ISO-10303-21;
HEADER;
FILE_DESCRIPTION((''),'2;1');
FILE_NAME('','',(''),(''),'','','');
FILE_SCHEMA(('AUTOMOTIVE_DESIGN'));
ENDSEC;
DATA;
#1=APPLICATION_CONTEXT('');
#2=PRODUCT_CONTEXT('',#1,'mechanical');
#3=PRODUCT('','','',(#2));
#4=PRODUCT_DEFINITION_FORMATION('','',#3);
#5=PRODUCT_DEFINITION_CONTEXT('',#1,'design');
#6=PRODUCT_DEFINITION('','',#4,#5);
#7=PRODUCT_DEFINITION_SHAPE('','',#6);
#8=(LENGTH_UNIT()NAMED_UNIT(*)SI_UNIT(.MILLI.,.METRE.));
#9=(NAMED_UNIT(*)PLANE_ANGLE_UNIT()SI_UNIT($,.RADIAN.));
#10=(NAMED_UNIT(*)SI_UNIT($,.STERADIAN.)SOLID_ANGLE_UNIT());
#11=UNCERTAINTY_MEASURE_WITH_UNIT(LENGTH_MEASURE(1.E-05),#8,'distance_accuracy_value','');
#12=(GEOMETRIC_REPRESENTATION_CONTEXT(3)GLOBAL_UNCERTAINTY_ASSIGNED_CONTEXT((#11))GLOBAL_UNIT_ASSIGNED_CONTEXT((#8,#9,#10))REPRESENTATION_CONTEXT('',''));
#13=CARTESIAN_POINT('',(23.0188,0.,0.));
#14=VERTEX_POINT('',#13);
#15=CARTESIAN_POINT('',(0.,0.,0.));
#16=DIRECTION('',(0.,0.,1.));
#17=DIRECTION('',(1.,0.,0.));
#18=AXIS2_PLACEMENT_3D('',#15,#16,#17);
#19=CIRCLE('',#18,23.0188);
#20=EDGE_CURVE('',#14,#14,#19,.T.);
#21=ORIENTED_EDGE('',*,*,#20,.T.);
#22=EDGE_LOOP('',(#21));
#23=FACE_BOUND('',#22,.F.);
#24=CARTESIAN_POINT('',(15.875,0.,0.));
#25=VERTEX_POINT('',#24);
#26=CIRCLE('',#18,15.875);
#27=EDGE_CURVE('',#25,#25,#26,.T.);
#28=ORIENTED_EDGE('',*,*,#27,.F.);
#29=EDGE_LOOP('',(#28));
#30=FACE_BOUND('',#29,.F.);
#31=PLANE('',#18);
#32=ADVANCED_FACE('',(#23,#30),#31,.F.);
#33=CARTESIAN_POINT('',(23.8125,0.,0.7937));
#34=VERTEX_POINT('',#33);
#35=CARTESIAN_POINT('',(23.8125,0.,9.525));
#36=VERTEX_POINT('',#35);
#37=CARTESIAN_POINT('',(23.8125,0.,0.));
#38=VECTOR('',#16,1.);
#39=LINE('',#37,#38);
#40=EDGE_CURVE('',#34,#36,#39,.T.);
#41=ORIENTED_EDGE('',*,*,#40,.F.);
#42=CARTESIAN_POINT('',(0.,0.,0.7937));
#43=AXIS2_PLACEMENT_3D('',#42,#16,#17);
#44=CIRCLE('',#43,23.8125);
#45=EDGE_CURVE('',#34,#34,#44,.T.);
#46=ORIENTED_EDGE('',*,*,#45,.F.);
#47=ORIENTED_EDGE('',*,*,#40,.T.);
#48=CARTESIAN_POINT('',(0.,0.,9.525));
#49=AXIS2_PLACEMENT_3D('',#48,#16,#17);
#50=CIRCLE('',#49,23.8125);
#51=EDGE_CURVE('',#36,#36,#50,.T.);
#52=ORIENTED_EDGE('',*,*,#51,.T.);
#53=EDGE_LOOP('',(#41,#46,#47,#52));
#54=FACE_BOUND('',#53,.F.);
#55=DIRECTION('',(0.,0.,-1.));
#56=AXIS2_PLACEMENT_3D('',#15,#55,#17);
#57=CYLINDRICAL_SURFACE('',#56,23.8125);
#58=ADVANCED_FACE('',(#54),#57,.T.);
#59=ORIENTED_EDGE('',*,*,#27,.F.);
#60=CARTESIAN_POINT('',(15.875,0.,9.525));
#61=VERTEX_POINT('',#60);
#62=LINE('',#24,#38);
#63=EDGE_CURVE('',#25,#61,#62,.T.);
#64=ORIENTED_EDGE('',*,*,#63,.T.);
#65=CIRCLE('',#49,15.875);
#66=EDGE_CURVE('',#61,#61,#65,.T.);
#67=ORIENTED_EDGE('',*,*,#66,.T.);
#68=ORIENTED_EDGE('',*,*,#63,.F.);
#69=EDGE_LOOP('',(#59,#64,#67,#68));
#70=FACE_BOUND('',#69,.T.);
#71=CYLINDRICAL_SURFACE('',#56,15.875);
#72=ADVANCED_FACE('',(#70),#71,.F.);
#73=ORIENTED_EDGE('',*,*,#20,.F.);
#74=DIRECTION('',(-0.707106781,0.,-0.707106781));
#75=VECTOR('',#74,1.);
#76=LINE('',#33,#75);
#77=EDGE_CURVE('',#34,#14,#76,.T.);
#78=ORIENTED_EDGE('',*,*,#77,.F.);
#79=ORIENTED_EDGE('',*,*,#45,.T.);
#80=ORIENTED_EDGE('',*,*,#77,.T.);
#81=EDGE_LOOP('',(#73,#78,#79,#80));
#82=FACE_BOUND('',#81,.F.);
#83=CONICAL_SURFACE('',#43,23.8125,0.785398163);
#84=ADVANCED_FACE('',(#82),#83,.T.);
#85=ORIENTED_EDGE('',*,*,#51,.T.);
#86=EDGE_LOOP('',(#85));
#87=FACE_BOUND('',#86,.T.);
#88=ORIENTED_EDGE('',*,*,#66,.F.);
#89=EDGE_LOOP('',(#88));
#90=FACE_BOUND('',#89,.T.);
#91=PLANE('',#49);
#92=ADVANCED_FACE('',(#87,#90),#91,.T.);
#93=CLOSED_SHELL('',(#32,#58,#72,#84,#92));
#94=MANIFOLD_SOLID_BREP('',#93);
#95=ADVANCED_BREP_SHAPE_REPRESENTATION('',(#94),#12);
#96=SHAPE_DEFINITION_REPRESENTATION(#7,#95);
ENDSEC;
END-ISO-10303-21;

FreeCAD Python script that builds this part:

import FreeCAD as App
import Part
import Sketcher

V = App.Vector
Q = App.Units.Quantity


def edges_at(feature, points):
    """Names of the edges that pass closest to the given points."""
    edges = feature.Shape.Edges
    near = lambda p: min(range(len(edges)), key=lambda i: edges[i].distToShape(Part.Vertex(*p))[0])
    return sorted({f"Edge{near(p) + 1}" for p in points})

doc = App.newDocument("Part")
body = doc.addObject("PartDesign::Body", "Body")

# Sketch on XY plane
sketch1 = body.newObject("Sketcher::SketchObject", "Sketch")
sketch1.AttachmentSupport = (doc.getObject("XY_Plane"), [""])
sketch1.MapMode = "FlatFace"
sketch1.addGeometry(Part.Circle(V(0, 0, 0), V(0, 0, 1), 24), False)
sketch1.addGeometry(Part.Circle(V(0, 0, 0), V(0, 0, 1), 16), False)
sketch1.addConstraint(Sketcher.Constraint("Coincident", 0, 3, -1, 1))
sketch1.addConstraint(Sketcher.Constraint("Coincident", 1, 3, -1, 1))
sketch1.addConstraint(Sketcher.Constraint("Diameter", 1, Q("1.25 in")))
sketch1.addConstraint(Sketcher.Constraint("Diameter", 0, Q("1.875 in")))
pad1 = body.newObject("PartDesign::Pad", "Pad")
pad1.Profile = sketch1
pad1.Length = Q("0.375 in")
doc.recompute()

chamfer = body.newObject("PartDesign::Chamfer", "Chamfer")
chamfer.Base = (pad1, edges_at(pad1, [(-23.812, 0, 0)]))
chamfer.Size = Q("0.031248 in")

doc.recompute()
